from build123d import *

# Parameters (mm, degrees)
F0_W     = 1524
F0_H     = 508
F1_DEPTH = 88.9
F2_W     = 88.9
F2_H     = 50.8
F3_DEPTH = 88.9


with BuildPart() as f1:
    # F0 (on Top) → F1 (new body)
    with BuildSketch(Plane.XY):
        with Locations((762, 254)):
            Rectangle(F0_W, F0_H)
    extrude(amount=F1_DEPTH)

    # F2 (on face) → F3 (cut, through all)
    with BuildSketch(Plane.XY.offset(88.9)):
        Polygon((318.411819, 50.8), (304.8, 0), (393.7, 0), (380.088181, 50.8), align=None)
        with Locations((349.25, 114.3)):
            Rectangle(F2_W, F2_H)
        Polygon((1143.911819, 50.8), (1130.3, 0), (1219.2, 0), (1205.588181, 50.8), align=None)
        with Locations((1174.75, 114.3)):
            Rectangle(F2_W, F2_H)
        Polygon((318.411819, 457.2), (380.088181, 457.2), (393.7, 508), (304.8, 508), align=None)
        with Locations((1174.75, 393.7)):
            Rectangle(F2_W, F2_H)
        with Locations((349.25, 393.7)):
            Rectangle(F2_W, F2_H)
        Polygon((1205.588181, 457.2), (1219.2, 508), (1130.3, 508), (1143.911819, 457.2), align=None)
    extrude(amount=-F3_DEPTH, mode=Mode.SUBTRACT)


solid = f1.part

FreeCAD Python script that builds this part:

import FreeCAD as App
import Part
import Sketcher
from FreeCAD import Vector
Q = App.Units.Quantity

doc = App.newDocument("Part")
body = doc.addObject("PartDesign::Body", "Body")

# Sketch on XY plane
sketch1 = doc.addObject("Sketcher::SketchObject", "Sketch")
body.addObject(sketch1)
sketch1.AttachmentSupport = (doc.XY_Plane, [""])
sketch1.MapMode = "FlatFace"
sketch1.addGeometry(Part.LineSegment(Vector(0, 508, 0), Vector(0, 0, 0)), False)
sketch1.addGeometry(Part.LineSegment(Vector(0, 0, 0), Vector(1524, 0, 0)), False)
sketch1.addGeometry(Part.LineSegment(Vector(1524, 0, 0), Vector(1524, 508, 0)), False)
sketch1.addGeometry(Part.LineSegment(Vector(1524, 508, 0), Vector(0, 508, 0)), False)
sketch1.addConstraint(Sketcher.Constraint("Coincident", 0, 2, 1, 1))
sketch1.addConstraint(Sketcher.Constraint("Coincident", 1, 2, 2, 1))
sketch1.addConstraint(Sketcher.Constraint("Coincident", 2, 2, 3, 1))
sketch1.addConstraint(Sketcher.Constraint("Coincident", 3, 2, 0, 1))
sketch1.addConstraint(Sketcher.Constraint("Vertical", 0))
sketch1.addConstraint(Sketcher.Constraint("Horizontal", 1))
sketch1.addConstraint(Sketcher.Constraint("Vertical", 2))
sketch1.addConstraint(Sketcher.Constraint("Horizontal", 3))
sketch1.addConstraint(Sketcher.Constraint("Coincident", 0, 2, -1, 1))
sketch1.addConstraint(Sketcher.Constraint("DistanceX", 1, 1, 1, 2, Q("60 in")))
sketch1.addConstraint(Sketcher.Constraint("DistanceY", 0, 2, 0, 1, Q("20 in")))
pad1 = doc.addObject("PartDesign::Pad", "Pad")
body.addObject(pad1)
pad1.Profile = sketch1
pad1.Length = Q("3.5 in")

# Sketch on XY plane
sketch2 = doc.addObject("Sketcher::SketchObject", "Sketch001")
body.addObject(sketch2)
sketch2.AttachmentSupport = (doc.XY_Plane, [""])
sketch2.MapMode = "FlatFace"
sketch2.AttachmentOffset = App.Placement(Vector(0, 0, 3.5 * 25.4), App.Rotation())
sketch2.addGeometry(Part.LineSegment(Vector(318, 51, 0), Vector(305, 0, 0)), False)
sketch2.addGeometry(Part.LineSegment(Vector(305, 0, 0), Vector(394, 0, 0)), False)
sketch2.addGeometry(Part.LineSegment(Vector(394, 0, 0), Vector(380, 51, 0)), False)
sketch2.addGeometry(Part.LineSegment(Vector(380, 51, 0), Vector(318, 51, 0)), False)
sketch2.addGeometry(Part.LineSegment(Vector(305, 140, 0), Vector(305, 89, 0)), False)
sketch2.addGeometry(Part.LineSegment(Vector(305, 89, 0), Vector(394, 89, 0)), False)
sketch2.addGeometry(Part.LineSegment(Vector(394, 89, 0), Vector(394, 140, 0)), False)
sketch2.addGeometry(Part.LineSegment(Vector(394, 140, 0), Vector(305, 140, 0)), False)
sketch2.addGeometry(Part.LineSegment(Vector(1144, 51, 0), Vector(1130, 0, 0)), False)
sketch2.addGeometry(Part.LineSegment(Vector(1130, 0, 0), Vector(1219, 0, 0)), False)
sketch2.addGeometry(Part.LineSegment(Vector(1219, 0, 0), Vector(1206, 51, 0)), False)
sketch2.addGeometry(Part.LineSegment(Vector(1206, 51, 0), Vector(1144, 51, 0)), False)
sketch2.addGeometry(Part.LineSegment(Vector(1130, 140, 0), Vector(1130, 89, 0)), False)
sketch2.addGeometry(Part.LineSegment(Vector(1130, 89, 0), Vector(1219, 89, 0)), False)
sketch2.addGeometry(Part.LineSegment(Vector(1219, 89, 0), Vector(1219, 140, 0)), False)
sketch2.addGeometry(Part.LineSegment(Vector(1219, 140, 0), Vector(1130, 140, 0)), False)
sketch2.addGeometry(Part.LineSegment(Vector(318, 457, 0), Vector(380, 457, 0)), False)
sketch2.addGeometry(Part.LineSegment(Vector(380, 457, 0), Vector(394, 508, 0)), False)
sketch2.addGeometry(Part.LineSegment(Vector(394, 508, 0), Vector(305, 508, 0)), False)
sketch2.addGeometry(Part.LineSegment(Vector(305, 508, 0), Vector(318, 457, 0)), False)
sketch2.addGeometry(Part.LineSegment(Vector(1130, 419, 0), Vector(1130, 368, 0)), False)
sketch2.addGeometry(Part.LineSegment(Vector(1130, 368, 0), Vector(1219, 368, 0)), False)
sketch2.addGeometry(Part.LineSegment(Vector(1219, 368, 0), Vector(1219, 419, 0)), False)
sketch2.addGeometry(Part.LineSegment(Vector(1219, 419, 0), Vector(1130, 419, 0)), False)
sketch2.addGeometry(Part.LineSegment(Vector(305, 419, 0), Vector(305, 368, 0)), False)
sketch2.addGeometry(Part.LineSegment(Vector(305, 368, 0), Vector(394, 368, 0)), False)
sketch2.addGeometry(Part.LineSegment(Vector(394, 368, 0), Vector(394, 419, 0)), False)
sketch2.addGeometry(Part.LineSegment(Vector(394, 419, 0), Vector(305, 419, 0)), False)
sketch2.addGeometry(Part.LineSegment(Vector(1206, 457, 0), Vector(1219, 508, 0)), False)
sketch2.addGeometry(Part.LineSegment(Vector(1219, 508, 0), Vector(1130, 508, 0)), False)
sketch2.addGeometry(Part.LineSegment(Vector(1130, 508, 0), Vector(1144, 457, 0)), False)
sketch2.addGeometry(Part.LineSegment(Vector(1144, 457, 0), Vector(1206, 457, 0)), False)
sketch2.addConstraint(Sketcher.Constraint("Coincident", 0, 2, 1, 1))
sketch2.addConstraint(Sketcher.Constraint("Coincident", 1, 2, 2, 1))
sketch2.addConstraint(Sketcher.Constraint("Coincident", 2, 2, 3, 1))
sketch2.addConstraint(Sketcher.Constraint("Coincident", 3, 2, 0, 1))
sketch2.addConstraint(Sketcher.Constraint("Coincident", 4, 2, 5, 1))
sketch2.addConstraint(Sketcher.Constraint("Coincident", 5, 2, 6, 1))
sketch2.addConstraint(Sketcher.Constraint("Coincident", 6, 2, 7, 1))
sketch2.addConstraint(Sketcher.Constraint("Coincident", 7, 2, 4, 1))
sketch2.addConstraint(Sketcher.Constraint("Coincident", 8, 2, 9, 1))
sketch2.addConstraint(Sketcher.Constraint("Coincident", 9, 2, 10, 1))
sketch2.addConstraint(Sketcher.Constraint("Coincident", 10, 2, 11, 1))
sketch2.addConstraint(Sketcher.Constraint("Coincident", 11, 2, 8, 1))
sketch2.addConstraint(Sketcher.Constraint("Coincident", 12, 2, 13, 1))
sketch2.addConstraint(Sketcher.Constraint("Coincident", 13, 2, 14, 1))
sketch2.addConstraint(Sketcher.Constraint("Coincident", 14, 2, 15, 1))
sketch2.addConstraint(Sketcher.Constraint("Coincident", 15, 2, 12, 1))
sketch2.addConstraint(Sketcher.Constraint("Coincident", 16, 2, 17, 1))
sketch2.addConstraint(Sketcher.Constraint("Coincident", 17, 2, 18, 1))
sketch2.addConstraint(Sketcher.Constraint("Coincident", 18, 2, 19, 1))
sketch2.addConstraint(Sketcher.Constraint("Coincident", 19, 2, 16, 1))
sketch2.addConstraint(Sketcher.Constraint("Coincident", 20, 2, 21, 1))
sketch2.addConstraint(Sketcher.Constraint("Coincident", 21, 2, 22, 1))
sketch2.addConstraint(Sketcher.Constraint("Coincident", 22, 2, 23, 1))
sketch2.addConstraint(Sketcher.Constraint("Coincident", 23, 2, 20, 1))
sketch2.addConstraint(Sketcher.Constraint("Coincident", 24, 2, 25, 1))
sketch2.addConstraint(Sketcher.Constraint("Coincident", 25, 2, 26, 1))
sketch2.addConstraint(Sketcher.Constraint("Coincident", 26, 2, 27, 1))
sketch2.addConstraint(Sketcher.Constraint("Coincident", 27, 2, 24, 1))
sketch2.addConstraint(Sketcher.Constraint("Coincident", 28, 2, 29, 1))
sketch2.addConstraint(Sketcher.Constraint("Coincident", 29, 2, 30, 1))
sketch2.addConstraint(Sketcher.Constraint("Coincident", 30, 2, 31, 1))
sketch2.addConstraint(Sketcher.Constraint("Coincident", 31, 2, 28, 1))
sketch2.addConstraint(Sketcher.Constraint("Horizontal", 1))
sketch2.addConstraint(Sketcher.Constraint("Horizontal", 3))
sketch2.addConstraint(Sketcher.Constraint("Vertical", 4))
sketch2.addConstraint(Sketcher.Constraint("Horizontal", 5))
sketch2.addConstraint(Sketcher.Constraint("Vertical", 6))
sketch2.addConstraint(Sketcher.Constraint("Horizontal", 7))
sketch2.addConstraint(Sketcher.Constraint("Horizontal", 9))
sketch2.addConstraint(Sketcher.Constraint("Horizontal", 11))
sketch2.addConstraint(Sketcher.Constraint("Vertical", 12))
sketch2.addConstraint(Sketcher.Constraint("Horizontal", 13))
sketch2.addConstraint(Sketcher.Constraint("Vertical", 14))
sketch2.addConstraint(Sketcher.Constraint("Horizontal", 15))
sketch2.addConstraint(Sketcher.Constraint("Horizontal", 16))
sketch2.addConstraint(Sketcher.Constraint("Horizontal", 18))
sketch2.addConstraint(Sketcher.Constraint("Vertical", 20))
sketch2.addConstraint(Sketcher.Constraint("Horizontal", 21))
sketch2.addConstraint(Sketcher.Constraint("Vertical", 22))
sketch2.addConstraint(Sketcher.Constraint("Horizontal", 23))
sketch2.addConstraint(Sketcher.Constraint("Vertical", 24))
sketch2.addConstraint(Sketcher.Constraint("Horizontal", 25))
sketch2.addConstraint(Sketcher.Constraint("Vertical", 26))
sketch2.addConstraint(Sketcher.Constraint("Horizontal", 27))
sketch2.addConstraint(Sketcher.Constraint("Horizontal", 29))
sketch2.addConstraint(Sketcher.Constraint("Horizontal", 31))
sketch2.addConstraint(Sketcher.Constraint("PointOnObject", 0, 2, -1))
sketch2.addConstraint(Sketcher.Constraint("PointOnObject", 8, 2, -1))
sketch2.addConstraint(Sketcher.Constraint("Parallel", 0, 8))
sketch2.addConstraint(Sketcher.Constraint("Parallel", 2, 10))
sketch2.addConstraint(Sketcher.Constraint("Parallel", 8, 17))
sketch2.addConstraint(Sketcher.Constraint("Parallel", 10, 19))
sketch2.addConstraint(Sketcher.Constraint("Parallel", 17, 28))
sketch2.addConstraint(Sketcher.Constraint("Parallel", 19, 30))
sketch2.addConstraint(Sketcher.Constraint("Horizontal", 3, 2, 10, 2))
sketch2.addConstraint(Sketcher.Constraint("Horizontal", 5, 2, 12, 2))
sketch2.addConstraint(Sketcher.Constraint("Horizontal", 7, 2, 14, 2))
sketch2.addConstraint(Sketcher.Constraint("Horizontal", 21, 2, 24, 2))
sketch2.addConstraint(Sketcher.Constraint("Horizontal", 23, 2, 26, 2))
sketch2.addConstraint(Sketcher.Constraint("Horizontal", 18, 2, 28, 2))
sketch2.addConstraint(Sketcher.Constraint("Horizontal", 19, 2, 30, 2))
sketch2.addConstraint(Sketcher.Constraint("Vertical", 0, 2, 4, 2))
sketch2.addConstraint(Sketcher.Constraint("Vertical", 1, 2, 5, 2))
sketch2.addConstraint(Sketcher.Constraint("Vertical", 8, 2, 12, 2))
sketch2.addConstraint(Sketcher.Constraint("Vertical", 9, 2, 13, 2))
sketch2.addConstraint(Sketcher.Constraint("Vertical", 2, 2, 16, 2))
sketch2.addConstraint(Sketcher.Constraint("Vertical", 6, 2, 17, 2))
sketch2.addConstraint(Sketcher.Constraint("Vertical", 7, 2, 18, 2))
sketch2.addConstraint(Sketcher.Constraint("Vertical", 3, 2, 19, 2))
sketch2.addConstraint(Sketcher.Constraint("Vertical", 15, 2, 20, 2))
sketch2.addConstraint(Sketcher.Constraint("Vertical", 14, 2, 21, 2))
sketch2.addConstraint(Sketcher.Constraint("Vertical", 18, 2, 24, 2))
sketch2.addConstraint(Sketcher.Constraint("Vertical", 17, 2, 25, 2))
sketch2.addConstraint(Sketcher.Constraint("Vertical", 22, 2, 28, 2))
sketch2.addConstraint(Sketcher.Constraint("Vertical", 23, 2, 29, 2))
sketch2.addConstraint(Sketcher.Constraint("Equal", 7, 9))
sketch2.addConstraint(Sketcher.Constraint("Equal", 14, 20))
sketch2.addConstraint(Sketcher.Constraint("DistanceY", 4, 2, 4, 1, Q("2 in")))
sketch2.addConstraint(Sketcher.Constraint("DistanceX", 1, 1, 1, 2, Q("3.5 in")))
sketch2.addConstraint(Sketcher.Constraint("DistanceX", -1, 1, 0, 2, Q("12 in")))
sketch2.addConstraint(Sketcher.Constraint("DistanceY", -1, 1, 2, 2, Q("2 in")))
sketch2.addConstraint(Sketcher.Constraint("DistanceX", -1, 1, 9, 2, Q("48 in")))
sketch2.addConstraint(Sketcher.Constraint("DistanceY", -1, 1, 16, 2, Q("18 in")))
sketch2.addConstraint(Sketcher.Constraint("Angle", 0, Q("-105 deg")))
sketch2.addConstraint(Sketcher.Constraint("DistanceY", 15, 2, 20, 2, Q("9 in")))
sketch2.addConstraint(Sketcher.Constraint("DistanceY", -1, 1, 4, 2, Q("3.5 in")))
pocket1 = doc.addObject("PartDesign::Pocket", "Pocket")
body.addObject(pocket1)
pocket1.Profile = sketch2
pocket1.Type = "ThroughAll"

doc.recompute()
